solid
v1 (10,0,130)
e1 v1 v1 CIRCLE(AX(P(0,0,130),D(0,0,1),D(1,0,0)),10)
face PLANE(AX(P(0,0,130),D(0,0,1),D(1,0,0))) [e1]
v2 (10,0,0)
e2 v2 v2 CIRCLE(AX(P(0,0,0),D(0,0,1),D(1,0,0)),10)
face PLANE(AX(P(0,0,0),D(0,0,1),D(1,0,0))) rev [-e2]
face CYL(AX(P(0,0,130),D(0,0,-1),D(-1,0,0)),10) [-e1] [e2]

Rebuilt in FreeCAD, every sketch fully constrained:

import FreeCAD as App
import Part
import Sketcher

V = App.Vector

doc = App.newDocument("Part")
body = doc.addObject("PartDesign::Body", "Body")

# Sketch on XY plane
sketch1 = doc.addObject("Sketcher::SketchObject", "Sketch")
body.addObject(sketch1)
sketch1.AttachmentSupport = (doc.XY_Plane, [""])
sketch1.MapMode = "FlatFace"
sketch1.addGeometry(Part.Circle(V(0, 0, 0), V(0, 0, 1), 10), False)
sketch1.addConstraint(Sketcher.Constraint("Coincident", 0, 3, -1, 1))
sketch1.addConstraint(Sketcher.Constraint("Diameter", 0, 20.0))
pad1 = doc.addObject("PartDesign::Pad", "Pad")
body.addObject(pad1)
pad1.Profile = sketch1
pad1.Length = 130

doc.recompute()
